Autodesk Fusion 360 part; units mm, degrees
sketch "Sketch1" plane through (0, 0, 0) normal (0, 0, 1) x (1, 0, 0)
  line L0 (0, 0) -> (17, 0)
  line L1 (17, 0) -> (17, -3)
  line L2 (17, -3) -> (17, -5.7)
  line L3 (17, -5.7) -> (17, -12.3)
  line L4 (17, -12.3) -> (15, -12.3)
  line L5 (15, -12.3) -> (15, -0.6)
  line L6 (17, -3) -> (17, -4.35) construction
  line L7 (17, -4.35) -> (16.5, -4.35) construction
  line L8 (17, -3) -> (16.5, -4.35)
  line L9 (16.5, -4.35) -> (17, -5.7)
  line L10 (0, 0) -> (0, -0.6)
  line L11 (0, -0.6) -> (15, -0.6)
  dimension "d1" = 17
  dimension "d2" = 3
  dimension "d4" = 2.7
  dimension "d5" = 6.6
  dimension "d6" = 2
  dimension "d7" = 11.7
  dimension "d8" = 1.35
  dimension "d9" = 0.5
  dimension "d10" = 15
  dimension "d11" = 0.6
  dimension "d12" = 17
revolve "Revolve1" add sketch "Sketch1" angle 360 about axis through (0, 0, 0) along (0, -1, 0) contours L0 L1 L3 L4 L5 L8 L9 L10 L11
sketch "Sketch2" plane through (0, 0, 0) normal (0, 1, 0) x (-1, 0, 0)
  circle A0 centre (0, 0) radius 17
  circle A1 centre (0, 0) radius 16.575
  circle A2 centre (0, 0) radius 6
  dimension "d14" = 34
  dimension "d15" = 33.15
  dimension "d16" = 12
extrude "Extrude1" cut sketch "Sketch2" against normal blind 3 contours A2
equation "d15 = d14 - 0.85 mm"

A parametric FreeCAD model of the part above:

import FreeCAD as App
import Part
import Sketcher
Q = App.Units.Quantity

doc = App.newDocument("Part")
body = doc.addObject("PartDesign::Body", "Body")

sketch1 = body.newObject("Sketcher::SketchObject", "Sketch")
sketch1.AttachmentSupport = (doc.getObject("XY_Plane"), [""])
sketch1.MapMode = "FlatFace"
sketch1.addGeometry([
    Part.LineSegment(App.Vector(17, 0, 0), App.Vector(0, 0, 0)),
    Part.LineSegment(App.Vector(0, 0, 0), App.Vector(0, -0.6, 0)),
    Part.LineSegment(App.Vector(0, -0.6, 0), App.Vector(15, -0.6, 0)),
    Part.LineSegment(App.Vector(15, -0.6, 0), App.Vector(15, -12.3, 0)),
    Part.LineSegment(App.Vector(15, -12.3, 0), App.Vector(17, -12.3, 0)),
    Part.LineSegment(App.Vector(17, -12.3, 0), App.Vector(17, -5.7, 0)),
    Part.LineSegment(App.Vector(17, -5.7, 0), App.Vector(16.5, -4.3, 0)),
    Part.LineSegment(App.Vector(16.5, -4.3, 0), App.Vector(17, -3, 0)),
    Part.LineSegment(App.Vector(17, -3, 0), App.Vector(17, 0, 0)),
], False)
sketch1.addConstraint([
    Sketcher.Constraint("Coincident", 0, 2, 1, 1),
    Sketcher.Constraint("Coincident", 1, 2, 2, 1),
    Sketcher.Constraint("Coincident", 2, 2, 3, 1),
    Sketcher.Constraint("Coincident", 3, 2, 4, 1),
    Sketcher.Constraint("Coincident", 4, 2, 5, 1),
    Sketcher.Constraint("Coincident", 5, 2, 6, 1),
    Sketcher.Constraint("Coincident", 6, 2, 7, 1),
    Sketcher.Constraint("Coincident", 7, 2, 8, 1),
    Sketcher.Constraint("Coincident", 8, 2, 0, 1),
    Sketcher.Constraint("Horizontal", 0),
    Sketcher.Constraint("Vertical", 1),
    Sketcher.Constraint("Horizontal", 2),
    Sketcher.Constraint("Vertical", 3),
    Sketcher.Constraint("Horizontal", 4),
    Sketcher.Constraint("Vertical", 5),
    Sketcher.Constraint("Vertical", 8),
    Sketcher.Constraint("Coincident", 0, 2, -1, 1),
    Sketcher.Constraint("Vertical", 5, 2, 7, 2),
    Sketcher.Constraint("Equal", 6, 7),
    Sketcher.Constraint("DistanceX", 0, 2, 0, 1, Q("17 mm")),
    Sketcher.Constraint("DistanceX", 2, 1, 2, 2, Q("15 mm")),
    Sketcher.Constraint("DistanceY", 8, 1, 8, 2, Q("3 mm")),
    Sketcher.Constraint("DistanceY", 1, 2, 1, 1, Q("0.6 mm")),
    Sketcher.Constraint("DistanceY", 3, 2, 3, 1, Q("11.7 mm")),
    Sketcher.Constraint("DistanceY", 5, 1, 5, 2, Q("6.6 mm")),
    Sketcher.Constraint("DistanceX", 6, 2, 5, 2, Q("0.5 mm")),
])
revolution = body.newObject("PartDesign::Revolution", "Revolution")
revolution.Profile = sketch1
revolution.ReferenceAxis = (sketch1, ["V_Axis"])
revolution.Angle = 360

sketch2 = body.newObject("Sketcher::SketchObject", "Sketch001")
sketch2.AttachmentSupport = (doc.getObject("XZ_Plane"), [""])
sketch2.MapMode = "FlatFace"
sketch2.addGeometry(Part.Circle(App.Vector(0, 0, 0), App.Vector(0, 0, 1), 6), False)
sketch2.addConstraint([
    Sketcher.Constraint("Coincident", 0, 3, -1, 1),
    Sketcher.Constraint("Diameter", 0, Q("12 mm")),
])
pocket1 = body.newObject("PartDesign::Pocket", "Pocket")
pocket1.Profile = sketch2
pocket1.Length = 3
pocket1.Reversed = True

doc.recompute()
